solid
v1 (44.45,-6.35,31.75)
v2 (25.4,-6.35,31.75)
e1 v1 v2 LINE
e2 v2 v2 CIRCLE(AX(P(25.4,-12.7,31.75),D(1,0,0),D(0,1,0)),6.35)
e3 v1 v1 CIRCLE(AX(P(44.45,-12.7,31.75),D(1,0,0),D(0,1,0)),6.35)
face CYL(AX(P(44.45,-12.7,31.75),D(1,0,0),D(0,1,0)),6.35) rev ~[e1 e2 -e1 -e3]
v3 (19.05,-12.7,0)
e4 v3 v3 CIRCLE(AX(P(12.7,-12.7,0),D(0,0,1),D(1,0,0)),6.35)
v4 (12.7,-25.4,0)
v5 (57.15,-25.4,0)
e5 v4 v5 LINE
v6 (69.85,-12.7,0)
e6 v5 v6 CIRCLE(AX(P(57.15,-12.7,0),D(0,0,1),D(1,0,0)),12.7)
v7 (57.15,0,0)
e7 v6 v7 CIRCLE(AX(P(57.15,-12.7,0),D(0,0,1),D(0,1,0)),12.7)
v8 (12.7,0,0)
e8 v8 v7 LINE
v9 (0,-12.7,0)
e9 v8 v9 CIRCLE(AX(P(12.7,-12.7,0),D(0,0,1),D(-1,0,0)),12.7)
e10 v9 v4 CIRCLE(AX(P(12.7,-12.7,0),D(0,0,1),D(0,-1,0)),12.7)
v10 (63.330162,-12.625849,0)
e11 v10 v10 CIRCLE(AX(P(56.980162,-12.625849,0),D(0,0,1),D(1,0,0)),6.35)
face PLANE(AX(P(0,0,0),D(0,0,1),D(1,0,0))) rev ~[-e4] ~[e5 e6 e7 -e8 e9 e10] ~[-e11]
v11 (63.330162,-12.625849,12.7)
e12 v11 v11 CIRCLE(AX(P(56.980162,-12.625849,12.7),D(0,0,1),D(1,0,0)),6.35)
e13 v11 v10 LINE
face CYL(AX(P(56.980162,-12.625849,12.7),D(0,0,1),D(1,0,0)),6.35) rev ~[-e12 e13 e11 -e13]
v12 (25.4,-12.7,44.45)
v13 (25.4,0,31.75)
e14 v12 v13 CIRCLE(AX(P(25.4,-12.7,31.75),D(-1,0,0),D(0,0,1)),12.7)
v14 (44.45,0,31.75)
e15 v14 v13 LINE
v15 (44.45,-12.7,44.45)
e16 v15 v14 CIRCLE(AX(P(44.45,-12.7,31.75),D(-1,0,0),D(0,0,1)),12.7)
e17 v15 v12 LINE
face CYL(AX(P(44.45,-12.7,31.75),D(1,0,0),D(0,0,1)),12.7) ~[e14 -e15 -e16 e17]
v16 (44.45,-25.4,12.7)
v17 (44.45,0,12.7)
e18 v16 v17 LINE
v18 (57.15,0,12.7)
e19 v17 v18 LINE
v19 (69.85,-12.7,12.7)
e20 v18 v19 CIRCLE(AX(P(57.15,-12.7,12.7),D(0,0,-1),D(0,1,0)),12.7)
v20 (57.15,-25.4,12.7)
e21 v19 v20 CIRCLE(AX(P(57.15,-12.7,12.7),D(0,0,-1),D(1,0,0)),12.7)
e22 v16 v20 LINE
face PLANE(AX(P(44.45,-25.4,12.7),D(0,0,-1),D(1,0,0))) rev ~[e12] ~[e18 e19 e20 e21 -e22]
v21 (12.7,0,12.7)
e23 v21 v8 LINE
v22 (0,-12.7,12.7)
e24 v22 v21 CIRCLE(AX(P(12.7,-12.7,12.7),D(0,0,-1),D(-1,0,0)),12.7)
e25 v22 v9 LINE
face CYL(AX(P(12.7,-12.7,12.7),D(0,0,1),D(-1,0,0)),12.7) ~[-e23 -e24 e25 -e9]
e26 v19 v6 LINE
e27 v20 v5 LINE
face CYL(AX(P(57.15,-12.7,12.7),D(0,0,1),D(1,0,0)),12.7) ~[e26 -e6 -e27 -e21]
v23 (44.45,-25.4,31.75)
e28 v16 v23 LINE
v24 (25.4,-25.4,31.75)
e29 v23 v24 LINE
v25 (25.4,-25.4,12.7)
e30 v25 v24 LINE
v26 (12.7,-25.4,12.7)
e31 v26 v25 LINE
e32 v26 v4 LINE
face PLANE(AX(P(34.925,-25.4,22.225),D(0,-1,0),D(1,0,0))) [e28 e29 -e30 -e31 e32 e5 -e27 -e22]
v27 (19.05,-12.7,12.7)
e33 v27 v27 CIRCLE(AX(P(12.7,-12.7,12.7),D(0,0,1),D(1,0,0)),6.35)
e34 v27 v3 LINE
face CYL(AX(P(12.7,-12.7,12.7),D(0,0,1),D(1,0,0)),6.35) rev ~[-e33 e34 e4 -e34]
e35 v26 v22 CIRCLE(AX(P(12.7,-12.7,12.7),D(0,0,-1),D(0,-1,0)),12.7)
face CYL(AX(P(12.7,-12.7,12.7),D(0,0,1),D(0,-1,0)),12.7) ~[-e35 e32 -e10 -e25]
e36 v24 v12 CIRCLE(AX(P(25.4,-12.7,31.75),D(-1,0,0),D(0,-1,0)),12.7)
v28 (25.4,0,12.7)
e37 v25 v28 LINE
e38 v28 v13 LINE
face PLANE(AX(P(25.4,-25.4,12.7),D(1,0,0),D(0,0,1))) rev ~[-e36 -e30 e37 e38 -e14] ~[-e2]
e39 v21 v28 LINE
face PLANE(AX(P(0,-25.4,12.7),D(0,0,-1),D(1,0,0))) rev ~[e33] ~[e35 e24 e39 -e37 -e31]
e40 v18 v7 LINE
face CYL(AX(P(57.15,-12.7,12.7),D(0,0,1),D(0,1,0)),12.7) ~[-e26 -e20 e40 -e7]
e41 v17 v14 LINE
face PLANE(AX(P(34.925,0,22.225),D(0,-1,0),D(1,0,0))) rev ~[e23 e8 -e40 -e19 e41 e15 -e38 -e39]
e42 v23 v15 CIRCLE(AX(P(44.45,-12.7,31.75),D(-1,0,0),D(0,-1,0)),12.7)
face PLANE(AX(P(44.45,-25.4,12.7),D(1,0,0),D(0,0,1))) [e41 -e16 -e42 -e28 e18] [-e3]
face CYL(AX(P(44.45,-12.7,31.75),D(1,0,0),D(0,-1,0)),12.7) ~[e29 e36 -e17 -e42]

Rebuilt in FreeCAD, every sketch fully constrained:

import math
import FreeCAD as App
import Part
import Sketcher
Q = App.Units.Quantity


def add_polygon(sketch, points):
    """Adds a closed chain of lines whose ends are joined by coincident constraints."""
    first, n = sketch.GeometryCount, len(points)
    for a, b in zip(points, points[1:] + points[:1]):
        sketch.addGeometry(Part.LineSegment(App.Vector(*a, 0), App.Vector(*b, 0)), False)
    for i in range(n):
        sketch.addConstraint(Sketcher.Constraint("Coincident", first + i, 2, first + (i + 1) % n, 1))

doc = App.newDocument("Part")
body = doc.addObject("PartDesign::Body", "Body")

sketch1 = body.newObject("Sketcher::SketchObject", "Sketch")
sketch1.AttachmentSupport = (doc.getObject("XZ_Plane"), [""])
sketch1.MapMode = "FlatFace"
add_polygon(sketch1, [(0, 44), (0, 0), (70, 0), (70, 44)])
sketch1.addConstraint([
    Sketcher.Constraint("Vertical", 0),
    Sketcher.Constraint("Horizontal", 1),
    Sketcher.Constraint("Vertical", 2),
    Sketcher.Constraint("Horizontal", 3),
    Sketcher.Constraint("Coincident", 0, 2, -1, 1),
    Sketcher.Constraint("DistanceX", 1, 1, 1, 2, Q("2.75 in")),
    Sketcher.Constraint("DistanceY", 0, 2, 0, 1, Q("1.75 in")),
])
pad1 = body.newObject("PartDesign::Pad", "Pad")
pad1.Profile = sketch1
pad1.Length = Q("1 in")

sketch2 = body.newObject("Sketcher::SketchObject", "Sketch001")
sketch2.AttachmentSupport = (doc.getObject("XZ_Plane"), [""])
sketch2.MapMode = "FlatFace"
sketch2.AttachmentOffset = App.Placement(App.Vector(0, 0, 1 * 25.4), App.Rotation())
add_polygon(sketch2, [(0, 44), (0, 13), (25, 13), (25, 44)])
add_polygon(sketch2, [(44, 44), (44, 13), (70, 13), (70, 44)])
sketch2.addConstraint([
    Sketcher.Constraint("Vertical", 0),
    Sketcher.Constraint("Horizontal", 1),
    Sketcher.Constraint("Vertical", 2),
    Sketcher.Constraint("Horizontal", 3),
    Sketcher.Constraint("Vertical", 4),
    Sketcher.Constraint("Horizontal", 5),
    Sketcher.Constraint("Vertical", 6),
    Sketcher.Constraint("Horizontal", 7),
    Sketcher.Constraint("PointOnObject", 0, 2, -2),
    Sketcher.Constraint("Horizontal", 1, 2, 4, 2),
    Sketcher.Constraint("Horizontal", 3, 2, 6, 2),
    Sketcher.Constraint("Equal", 3, 5),
    Sketcher.Constraint("DistanceX", 1, 1, 1, 2, Q("1 in")),
    Sketcher.Constraint("DistanceY", 0, 2, 0, 1, Q("1.25 in")),
    Sketcher.Constraint("DistanceY", -1, 1, 0, 2, Q("0.5 in")),
    Sketcher.Constraint("DistanceX", -1, 1, 4, 2, Q("1.75 in")),
])
pocket1 = body.newObject("PartDesign::Pocket", "Pocket")
pocket1.Profile = sketch2
pocket1.Length = Q("1 in")

sketch3 = body.newObject("Sketcher::SketchObject", "Sketch002")
sketch3.AttachmentSupport = (doc.getObject("YZ_Plane"), [""])
sketch3.MapMode = "FlatFace"
sketch3.AttachmentOffset = App.Placement(App.Vector(0, 0, 1.75 * 25.4), App.Rotation())
sketch3.addGeometry([
    Part.ArcOfCircle(Part.Circle(App.Vector(-13, 32, 0), App.Vector(0, 0, 1), 13), math.radians(90), math.radians(180)),
    Part.LineSegment(App.Vector(-13, 44, 0), App.Vector(-25, 44, 0)),
    Part.LineSegment(App.Vector(-25, 44, 0), App.Vector(-25, 32, 0)),
    Part.ArcOfCircle(Part.Circle(App.Vector(-13, 32, 0), App.Vector(0, 0, 1), 13), math.radians(0), math.radians(90)),
    Part.LineSegment(App.Vector(0, 32, 0), App.Vector(0, 44, 0)),
    Part.LineSegment(App.Vector(0, 44, 0), App.Vector(-13, 44, 0)),
    Part.Circle(App.Vector(-13, 32, 0), App.Vector(0, 0, 1), 6),
], False)
sketch3.addConstraint([
    Sketcher.Constraint("Tangent", 0, 1, 1, 1),
    Sketcher.Constraint("Coincident", 1, 2, 2, 1),
    Sketcher.Constraint("Tangent", 2, 2, 0, 2),
    Sketcher.Constraint("Tangent", 3, 1, 4, 1),
    Sketcher.Constraint("Coincident", 4, 2, 5, 1),
    Sketcher.Constraint("Tangent", 5, 2, 3, 2),
    Sketcher.Constraint("Horizontal", 1),
    Sketcher.Constraint("Vertical", 2),
    Sketcher.Constraint("Vertical", 4),
    Sketcher.Constraint("Horizontal", 5),
    Sketcher.Constraint("Coincident", 3, 3, 0, 3),
    Sketcher.Constraint("Coincident", 6, 3, 0, 3),
    Sketcher.Constraint("Equal", 0, 3),
    Sketcher.Constraint("PointOnObject", 3, 1, -2),
    Sketcher.Constraint("Diameter", 6, Q("0.5 in")),
    Sketcher.Constraint("Radius", 0, Q("0.5 in")),
    Sketcher.Constraint("DistanceY", -1, 1, 0, 3, Q("1.25 in")),
])
pocket2 = body.newObject("PartDesign::Pocket", "Pocket001")
pocket2.Profile = sketch3
pocket2.Length = Q("0.75 in")

sketch4 = body.newObject("Sketcher::SketchObject", "Sketch003")
sketch4.AttachmentSupport = (doc.getObject("XY_Plane"), [""])
sketch4.MapMode = "FlatFace"
sketch4.AttachmentOffset = App.Placement(App.Vector(0, 0, 0.5 * 25.4), App.Rotation())
sketch4.addGeometry([
    Part.ArcOfCircle(Part.Circle(App.Vector(13, -13, 0), App.Vector(0, 0, 1), 13), math.radians(180), math.radians(270)),
    Part.LineSegment(App.Vector(0, -13, 0), App.Vector(0, -25, 0)),
    Part.LineSegment(App.Vector(0, -25, 0), App.Vector(13, -25, 0)),
    Part.ArcOfCircle(Part.Circle(App.Vector(13, -13, 0), App.Vector(0, 0, 1), 13), math.radians(90), math.radians(180)),
    Part.LineSegment(App.Vector(13, 0, 0), App.Vector(0, 0, 0)),
    Part.LineSegment(App.Vector(0, 0, 0), App.Vector(0, -13, 0)),
    Part.Circle(App.Vector(57, -13, 0), App.Vector(0, 0, 1), 6),
    Part.Circle(App.Vector(13, -13, 0), App.Vector(0, 0, 1), 6),
], False)
sketch4.addConstraint([
    Sketcher.Constraint("Tangent", 0, 1, 1, 1),
    Sketcher.Constraint("Coincident", 1, 2, 2, 1),
    Sketcher.Constraint("Tangent", 2, 2, 0, 2),
    Sketcher.Constraint("Tangent", 3, 1, 4, 1),
    Sketcher.Constraint("Coincident", 4, 2, 5, 1),
    Sketcher.Constraint("Tangent", 5, 2, 3, 2),
    Sketcher.Constraint("Vertical", 1),
    Sketcher.Constraint("Horizontal", 2),
    Sketcher.Constraint("Horizontal", 4),
    Sketcher.Constraint("Vertical", 5),
    Sketcher.Constraint("Coincident", 4, 2, -1, 1),
    Sketcher.Constraint("Coincident", 3, 3, 0, 3),
    Sketcher.Constraint("Coincident", 7, 3, 0, 3),
    Sketcher.Constraint("Equal", 0, 3),
    Sketcher.Constraint("Equal", 6, 7),
    Sketcher.Constraint("Diameter", 6, Q("0.5 in")),
    Sketcher.Constraint("Radius", 0, Q("0.5 in")),
    Sketcher.Constraint("DistanceY", 6, 3, -1, 1, 12.625849),
    Sketcher.Constraint("DistanceX", -1, 1, 6, 3, 56.980162),
])
pocket3 = body.newObject("PartDesign::Pocket", "Pocket002")
pocket3.Profile = sketch4
pocket3.Length = Q("1 in")

sketch5 = body.newObject("Sketcher::SketchObject", "Sketch004")
sketch5.AttachmentSupport = (doc.getObject("XY_Plane"), [""])
sketch5.MapMode = "FlatFace"
sketch5.AttachmentOffset = App.Placement(App.Vector(0, 0, 0.5 * 25.4), App.Rotation())
sketch5.addGeometry([
    Part.ArcOfCircle(Part.Circle(App.Vector(57, -13, 0), App.Vector(0, 0, 1), 13), math.radians(0), math.radians(90)),
    Part.LineSegment(App.Vector(70, -13, 0), App.Vector(70, 0, 0)),
    Part.LineSegment(App.Vector(70, 0, 0), App.Vector(57, 0, 0)),
    Part.ArcOfCircle(Part.Circle(App.Vector(57, -13, 0), App.Vector(0, 0, 1), 13), math.radians(-90), math.radians(0)),
    Part.LineSegment(App.Vector(57, -25, 0), App.Vector(70, -25, 0)),
    Part.LineSegment(App.Vector(70, -25, 0), App.Vector(70, -13, 0)),
], False)
sketch5.addConstraint([
    Sketcher.Constraint("Tangent", 0, 1, 1, 1),
    Sketcher.Constraint("Coincident", 1, 2, 2, 1),
    Sketcher.Constraint("Tangent", 2, 2, 0, 2),
    Sketcher.Constraint("Tangent", 3, 1, 4, 1),
    Sketcher.Constraint("Coincident", 4, 2, 5, 1),
    Sketcher.Constraint("Tangent", 5, 2, 3, 2),
    Sketcher.Constraint("Vertical", 1),
    Sketcher.Constraint("Horizontal", 2),
    Sketcher.Constraint("Horizontal", 4),
    Sketcher.Constraint("Vertical", 5),
    Sketcher.Constraint("Coincident", 3, 3, 0, 3),
    Sketcher.Constraint("Equal", 0, 3),
    Sketcher.Constraint("PointOnObject", 1, 2, -1),
    Sketcher.Constraint("Radius", 0, Q("0.5 in")),
    Sketcher.Constraint("DistanceX", -1, 1, 0, 3, Q("2.25 in")),
])
pocket4 = body.newObject("PartDesign::Pocket", "Pocket003")
pocket4.Profile = sketch5
pocket4.Length = Q("1 in")

doc.recompute()
